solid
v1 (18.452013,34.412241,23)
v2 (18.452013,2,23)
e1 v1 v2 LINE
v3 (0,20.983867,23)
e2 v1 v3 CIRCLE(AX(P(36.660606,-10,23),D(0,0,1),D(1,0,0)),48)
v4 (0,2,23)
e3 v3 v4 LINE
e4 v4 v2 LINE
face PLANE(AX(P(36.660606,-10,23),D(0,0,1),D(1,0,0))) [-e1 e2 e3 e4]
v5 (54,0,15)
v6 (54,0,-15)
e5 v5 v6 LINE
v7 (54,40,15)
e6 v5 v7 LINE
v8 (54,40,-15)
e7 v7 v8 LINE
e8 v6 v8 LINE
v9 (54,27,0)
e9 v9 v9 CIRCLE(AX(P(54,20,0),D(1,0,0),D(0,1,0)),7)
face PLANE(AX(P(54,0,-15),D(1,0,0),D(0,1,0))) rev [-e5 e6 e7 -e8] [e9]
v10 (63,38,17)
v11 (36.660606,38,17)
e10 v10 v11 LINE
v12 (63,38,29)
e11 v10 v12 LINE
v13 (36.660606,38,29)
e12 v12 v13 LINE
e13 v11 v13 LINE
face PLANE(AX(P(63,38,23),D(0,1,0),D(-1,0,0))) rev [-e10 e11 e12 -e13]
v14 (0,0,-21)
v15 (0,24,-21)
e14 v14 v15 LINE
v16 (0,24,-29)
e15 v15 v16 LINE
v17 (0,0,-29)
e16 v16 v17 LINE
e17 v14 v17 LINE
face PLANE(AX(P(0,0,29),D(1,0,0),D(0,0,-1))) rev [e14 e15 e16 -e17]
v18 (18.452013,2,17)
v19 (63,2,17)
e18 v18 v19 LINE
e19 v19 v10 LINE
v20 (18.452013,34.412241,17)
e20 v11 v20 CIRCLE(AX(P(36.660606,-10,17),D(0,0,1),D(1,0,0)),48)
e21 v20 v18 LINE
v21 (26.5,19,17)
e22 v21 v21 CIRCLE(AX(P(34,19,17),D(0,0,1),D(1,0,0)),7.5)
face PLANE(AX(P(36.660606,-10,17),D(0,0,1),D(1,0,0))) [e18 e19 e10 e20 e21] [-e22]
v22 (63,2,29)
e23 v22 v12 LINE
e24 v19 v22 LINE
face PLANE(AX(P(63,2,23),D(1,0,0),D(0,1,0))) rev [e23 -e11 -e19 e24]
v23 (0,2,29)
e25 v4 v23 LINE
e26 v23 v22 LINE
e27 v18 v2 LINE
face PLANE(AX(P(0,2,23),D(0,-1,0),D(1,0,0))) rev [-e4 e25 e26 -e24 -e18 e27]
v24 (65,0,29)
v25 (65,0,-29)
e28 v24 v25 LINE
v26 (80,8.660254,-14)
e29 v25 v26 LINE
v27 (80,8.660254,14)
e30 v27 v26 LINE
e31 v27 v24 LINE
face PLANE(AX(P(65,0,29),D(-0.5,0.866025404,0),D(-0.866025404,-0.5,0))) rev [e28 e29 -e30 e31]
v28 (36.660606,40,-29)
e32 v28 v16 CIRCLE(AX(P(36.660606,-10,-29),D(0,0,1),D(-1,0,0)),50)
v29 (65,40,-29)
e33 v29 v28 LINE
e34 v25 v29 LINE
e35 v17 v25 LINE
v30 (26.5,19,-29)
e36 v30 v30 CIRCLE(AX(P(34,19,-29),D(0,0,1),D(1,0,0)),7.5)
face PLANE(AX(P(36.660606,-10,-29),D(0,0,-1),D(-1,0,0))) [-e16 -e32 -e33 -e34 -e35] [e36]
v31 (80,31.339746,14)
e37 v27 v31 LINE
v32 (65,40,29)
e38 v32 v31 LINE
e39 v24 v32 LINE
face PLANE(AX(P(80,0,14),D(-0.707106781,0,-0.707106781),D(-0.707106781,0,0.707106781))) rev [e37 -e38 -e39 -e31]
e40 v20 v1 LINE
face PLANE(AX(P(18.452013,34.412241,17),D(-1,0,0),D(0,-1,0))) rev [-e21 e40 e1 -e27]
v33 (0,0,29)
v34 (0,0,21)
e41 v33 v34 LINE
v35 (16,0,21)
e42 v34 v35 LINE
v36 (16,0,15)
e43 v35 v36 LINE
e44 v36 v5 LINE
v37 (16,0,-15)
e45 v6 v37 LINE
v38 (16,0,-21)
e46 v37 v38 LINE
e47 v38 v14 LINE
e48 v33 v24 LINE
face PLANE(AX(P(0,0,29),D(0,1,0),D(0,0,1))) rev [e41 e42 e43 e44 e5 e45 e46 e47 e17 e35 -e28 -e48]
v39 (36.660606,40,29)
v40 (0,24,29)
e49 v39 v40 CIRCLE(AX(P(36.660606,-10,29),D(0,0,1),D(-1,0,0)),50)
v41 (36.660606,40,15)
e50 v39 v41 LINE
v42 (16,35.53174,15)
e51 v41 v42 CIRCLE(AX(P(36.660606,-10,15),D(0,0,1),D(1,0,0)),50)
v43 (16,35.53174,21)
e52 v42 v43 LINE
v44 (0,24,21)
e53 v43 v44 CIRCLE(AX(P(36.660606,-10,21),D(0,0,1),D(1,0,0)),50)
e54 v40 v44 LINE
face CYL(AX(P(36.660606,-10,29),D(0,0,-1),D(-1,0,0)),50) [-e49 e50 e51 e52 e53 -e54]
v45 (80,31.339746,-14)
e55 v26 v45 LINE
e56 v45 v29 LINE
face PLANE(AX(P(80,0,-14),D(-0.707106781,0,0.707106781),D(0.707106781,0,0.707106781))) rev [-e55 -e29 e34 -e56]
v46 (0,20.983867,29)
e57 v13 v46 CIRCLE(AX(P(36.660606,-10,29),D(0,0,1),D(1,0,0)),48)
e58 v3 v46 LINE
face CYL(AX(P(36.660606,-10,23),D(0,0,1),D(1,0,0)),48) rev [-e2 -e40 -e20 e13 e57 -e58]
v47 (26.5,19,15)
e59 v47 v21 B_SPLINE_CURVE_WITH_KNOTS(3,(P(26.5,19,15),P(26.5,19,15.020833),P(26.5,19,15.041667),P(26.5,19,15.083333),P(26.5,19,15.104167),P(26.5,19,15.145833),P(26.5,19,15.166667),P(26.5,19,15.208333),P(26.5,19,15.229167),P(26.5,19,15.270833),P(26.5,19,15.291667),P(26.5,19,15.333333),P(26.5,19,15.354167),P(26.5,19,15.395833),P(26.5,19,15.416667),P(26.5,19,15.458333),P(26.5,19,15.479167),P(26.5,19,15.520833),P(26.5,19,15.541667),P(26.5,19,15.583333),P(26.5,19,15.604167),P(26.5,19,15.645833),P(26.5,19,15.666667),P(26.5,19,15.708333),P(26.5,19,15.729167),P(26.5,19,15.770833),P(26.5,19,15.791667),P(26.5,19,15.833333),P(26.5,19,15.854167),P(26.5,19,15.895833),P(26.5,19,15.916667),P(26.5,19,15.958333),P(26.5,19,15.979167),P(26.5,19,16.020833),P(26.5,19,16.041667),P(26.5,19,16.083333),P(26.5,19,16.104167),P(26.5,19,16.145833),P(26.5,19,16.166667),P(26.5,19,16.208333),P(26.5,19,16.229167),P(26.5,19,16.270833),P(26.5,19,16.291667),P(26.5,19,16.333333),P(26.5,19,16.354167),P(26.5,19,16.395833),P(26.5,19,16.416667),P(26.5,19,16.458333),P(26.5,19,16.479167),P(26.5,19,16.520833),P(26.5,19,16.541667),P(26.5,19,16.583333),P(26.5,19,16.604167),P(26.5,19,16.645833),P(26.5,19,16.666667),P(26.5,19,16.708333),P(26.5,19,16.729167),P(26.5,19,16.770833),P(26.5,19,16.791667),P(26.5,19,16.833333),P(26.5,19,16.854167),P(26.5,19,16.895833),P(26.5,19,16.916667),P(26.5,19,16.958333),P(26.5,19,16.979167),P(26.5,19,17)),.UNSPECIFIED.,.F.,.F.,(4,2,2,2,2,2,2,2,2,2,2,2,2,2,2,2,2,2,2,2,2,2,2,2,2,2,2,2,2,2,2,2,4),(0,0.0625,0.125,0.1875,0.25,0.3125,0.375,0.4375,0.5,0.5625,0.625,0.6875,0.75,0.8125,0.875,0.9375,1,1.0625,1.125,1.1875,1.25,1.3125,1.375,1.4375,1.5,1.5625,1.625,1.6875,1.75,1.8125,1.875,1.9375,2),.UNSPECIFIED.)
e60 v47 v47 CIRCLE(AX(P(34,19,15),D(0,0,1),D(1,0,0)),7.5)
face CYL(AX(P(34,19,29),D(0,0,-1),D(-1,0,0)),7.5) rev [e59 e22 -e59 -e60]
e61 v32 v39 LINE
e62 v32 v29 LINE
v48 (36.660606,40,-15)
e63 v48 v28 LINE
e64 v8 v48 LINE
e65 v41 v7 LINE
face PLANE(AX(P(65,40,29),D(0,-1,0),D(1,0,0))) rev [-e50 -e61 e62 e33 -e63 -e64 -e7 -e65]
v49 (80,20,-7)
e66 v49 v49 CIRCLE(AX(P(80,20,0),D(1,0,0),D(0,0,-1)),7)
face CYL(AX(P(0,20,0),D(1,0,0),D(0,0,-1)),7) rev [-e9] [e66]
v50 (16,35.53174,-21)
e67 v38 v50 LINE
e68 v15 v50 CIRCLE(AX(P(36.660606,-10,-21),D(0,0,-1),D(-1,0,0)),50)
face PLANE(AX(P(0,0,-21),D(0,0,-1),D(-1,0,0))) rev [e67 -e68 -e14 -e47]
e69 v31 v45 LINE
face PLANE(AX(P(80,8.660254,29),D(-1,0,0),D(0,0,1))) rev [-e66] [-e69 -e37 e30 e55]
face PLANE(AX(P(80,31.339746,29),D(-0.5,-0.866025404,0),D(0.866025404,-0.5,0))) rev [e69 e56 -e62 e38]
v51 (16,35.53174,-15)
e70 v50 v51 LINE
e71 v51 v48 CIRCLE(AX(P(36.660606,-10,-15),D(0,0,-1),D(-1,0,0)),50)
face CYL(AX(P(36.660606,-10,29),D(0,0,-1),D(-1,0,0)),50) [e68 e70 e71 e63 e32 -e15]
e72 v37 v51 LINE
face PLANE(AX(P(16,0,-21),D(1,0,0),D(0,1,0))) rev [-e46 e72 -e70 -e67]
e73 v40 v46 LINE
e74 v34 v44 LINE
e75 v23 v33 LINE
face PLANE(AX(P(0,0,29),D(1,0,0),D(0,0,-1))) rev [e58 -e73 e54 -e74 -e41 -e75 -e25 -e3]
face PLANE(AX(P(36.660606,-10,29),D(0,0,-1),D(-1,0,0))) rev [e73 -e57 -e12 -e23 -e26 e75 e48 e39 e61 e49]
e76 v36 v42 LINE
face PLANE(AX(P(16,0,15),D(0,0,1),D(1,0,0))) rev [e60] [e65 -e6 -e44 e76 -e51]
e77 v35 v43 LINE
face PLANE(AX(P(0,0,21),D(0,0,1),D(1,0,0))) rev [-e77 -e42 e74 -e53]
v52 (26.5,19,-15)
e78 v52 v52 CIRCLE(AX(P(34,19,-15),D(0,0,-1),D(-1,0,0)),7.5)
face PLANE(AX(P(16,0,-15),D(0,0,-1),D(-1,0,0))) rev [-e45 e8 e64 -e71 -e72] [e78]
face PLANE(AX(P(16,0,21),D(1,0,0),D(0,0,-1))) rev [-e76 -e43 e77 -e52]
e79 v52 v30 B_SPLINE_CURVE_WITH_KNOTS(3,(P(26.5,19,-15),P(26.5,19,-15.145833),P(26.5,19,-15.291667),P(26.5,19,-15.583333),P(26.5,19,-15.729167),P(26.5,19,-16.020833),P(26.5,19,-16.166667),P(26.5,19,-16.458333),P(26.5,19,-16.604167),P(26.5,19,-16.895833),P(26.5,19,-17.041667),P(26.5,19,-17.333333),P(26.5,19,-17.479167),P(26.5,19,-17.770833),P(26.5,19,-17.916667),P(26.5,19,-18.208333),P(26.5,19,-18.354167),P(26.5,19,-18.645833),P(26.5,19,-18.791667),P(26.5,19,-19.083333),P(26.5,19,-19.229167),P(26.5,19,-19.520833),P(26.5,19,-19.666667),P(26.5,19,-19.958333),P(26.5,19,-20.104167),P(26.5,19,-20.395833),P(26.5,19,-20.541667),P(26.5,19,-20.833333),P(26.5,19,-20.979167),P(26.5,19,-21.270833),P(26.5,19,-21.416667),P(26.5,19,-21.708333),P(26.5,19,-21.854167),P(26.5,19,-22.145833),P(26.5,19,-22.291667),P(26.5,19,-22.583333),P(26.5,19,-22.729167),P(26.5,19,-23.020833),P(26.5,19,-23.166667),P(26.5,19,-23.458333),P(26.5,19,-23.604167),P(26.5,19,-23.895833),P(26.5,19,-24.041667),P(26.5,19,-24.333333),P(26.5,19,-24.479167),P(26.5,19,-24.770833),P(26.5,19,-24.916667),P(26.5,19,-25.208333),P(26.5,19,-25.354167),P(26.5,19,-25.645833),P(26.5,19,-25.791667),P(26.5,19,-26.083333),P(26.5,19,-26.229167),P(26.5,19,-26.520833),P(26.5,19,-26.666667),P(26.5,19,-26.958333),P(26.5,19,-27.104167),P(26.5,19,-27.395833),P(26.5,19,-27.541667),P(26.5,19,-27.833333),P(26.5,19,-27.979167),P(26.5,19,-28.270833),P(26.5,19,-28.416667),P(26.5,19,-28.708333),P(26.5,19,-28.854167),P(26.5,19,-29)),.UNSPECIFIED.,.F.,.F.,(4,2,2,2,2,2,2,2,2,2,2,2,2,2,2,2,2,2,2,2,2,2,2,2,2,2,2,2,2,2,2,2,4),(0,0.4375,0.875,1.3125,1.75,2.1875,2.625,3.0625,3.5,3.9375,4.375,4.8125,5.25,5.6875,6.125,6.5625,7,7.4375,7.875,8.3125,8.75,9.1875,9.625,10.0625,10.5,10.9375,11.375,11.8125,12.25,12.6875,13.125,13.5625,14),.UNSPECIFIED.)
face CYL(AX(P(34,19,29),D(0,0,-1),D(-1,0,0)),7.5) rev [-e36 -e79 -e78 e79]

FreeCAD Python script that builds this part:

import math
import FreeCAD as App
import Part
import Sketcher
from FreeCAD import Vector
Q = App.Units.Quantity

doc = App.newDocument("Part")
body = doc.addObject("PartDesign::Body", "Body")

sketch1 = body.newObject("Sketcher::SketchObject", "Sketch")
sketch1.AttachmentSupport = (doc.getObject("XY_Plane"), [""])
sketch1.MapMode = "FlatFace"
sketch1.addGeometry([
    Part.LineSegment(Vector(0, 24, 0), Vector(0, 0, 0)),
    Part.LineSegment(Vector(0, 0, 0), Vector(65, 0, 0)),
    Part.LineSegment(Vector(65, 0, 0), Vector(80, 8.660254, 0)),
    Part.LineSegment(Vector(80, 8.660254, 0), Vector(80, 31.339746, 0)),
    Part.LineSegment(Vector(80, 31.339746, 0), Vector(65, 40, 0)),
    Part.LineSegment(Vector(65, 40, 0), Vector(36.660606, 40, 0)),
    Part.ArcOfCircle(Part.Circle(Vector(36.660606, -10, 0), Vector(0, 0, 1), 50), math.radians(90), math.radians(137.156357)),
    Part.Circle(Vector(34, 19, 0), Vector(0, 0, 1), 7.5),
], False)
sketch1.addConstraint([
    Sketcher.Constraint("Coincident", 0, 2, 1, 1),
    Sketcher.Constraint("Coincident", 1, 2, 2, 1),
    Sketcher.Constraint("Coincident", 2, 2, 3, 1),
    Sketcher.Constraint("Coincident", 3, 2, 4, 1),
    Sketcher.Constraint("Coincident", 4, 2, 5, 1),
    Sketcher.Constraint("Tangent", 5, 2, 6, 1),
    Sketcher.Constraint("Coincident", 6, 2, 0, 1),
    Sketcher.Constraint("Vertical", 0),
    Sketcher.Constraint("Horizontal", 1),
    Sketcher.Constraint("Vertical", 3),
    Sketcher.Constraint("Horizontal", 5),
    Sketcher.Constraint("Coincident", 0, 2, -1, 1),
    Sketcher.Constraint("Vertical", 1, 2, 4, 2),
    Sketcher.Constraint("Equal", 2, 4),
    Sketcher.Constraint("Diameter", 7, 15.0),
    Sketcher.Constraint("Radius", 6, 50.0),
    Sketcher.Constraint("DistanceX", 1, 1, 1, 2, 65.0),
    Sketcher.Constraint("DistanceY", 0, 2, 0, 1, 24.0),
    Sketcher.Constraint("Angle", 2, Q("30 deg")),
    Sketcher.Constraint("DistanceY", 6, 3, -1, 1, 10.0),
    Sketcher.Constraint("DistanceX", -1, 1, 7, 3, 34.0),
    Sketcher.Constraint("DistanceY", -1, 1, 7, 3, 19.0),
    Sketcher.Constraint("DistanceX", -1, 1, 2, 2, 80.0),
])
pad1 = body.newObject("PartDesign::Pad", "Pad")
pad1.Profile = sketch1
pad1.Length = 58
pad1.Midplane = True

sketch2 = body.newObject("Sketcher::SketchObject", "Sketch001")
sketch2.AttachmentSupport = (doc.getObject("XZ_Plane"), [""])
sketch2.MapMode = "FlatFace"
sketch2.AttachmentOffset = App.Placement(Vector(0, 0, -40), App.Rotation())
sketch2.addGeometry([
    Part.LineSegment(Vector(80, -29, 0), Vector(65, -29, 0)),
    Part.LineSegment(Vector(65, -29, 0), Vector(80, -14, 0)),
    Part.LineSegment(Vector(80, -14, 0), Vector(80, -29, 0)),
    Part.LineSegment(Vector(16, -21, 0), Vector(0, -21, 0)),
    Part.LineSegment(Vector(0, -21, 0), Vector(0, 21, 0)),
    Part.LineSegment(Vector(0, 21, 0), Vector(16, 21, 0)),
    Part.LineSegment(Vector(16, 21, 0), Vector(16, 15, 0)),
    Part.LineSegment(Vector(16, 15, 0), Vector(54, 15, 0)),
    Part.LineSegment(Vector(54, 15, 0), Vector(54, -15, 0)),
    Part.LineSegment(Vector(54, -15, 0), Vector(16, -15, 0)),
    Part.LineSegment(Vector(16, -15, 0), Vector(16, -21, 0)),
    Part.LineSegment(Vector(80, 29, 0), Vector(80, 14, 0)),
    Part.LineSegment(Vector(80, 14, 0), Vector(65, 29, 0)),
    Part.LineSegment(Vector(65, 29, 0), Vector(80, 29, 0)),
], False)
sketch2.addConstraint([
    Sketcher.Constraint("Coincident", 0, 2, 1, 1),
    Sketcher.Constraint("Coincident", 1, 2, 2, 1),
    Sketcher.Constraint("Coincident", 2, 2, 0, 1),
    Sketcher.Constraint("Coincident", 3, 2, 4, 1),
    Sketcher.Constraint("Coincident", 4, 2, 5, 1),
    Sketcher.Constraint("Coincident", 5, 2, 6, 1),
    Sketcher.Constraint("Coincident", 6, 2, 7, 1),
    Sketcher.Constraint("Coincident", 7, 2, 8, 1),
    Sketcher.Constraint("Coincident", 8, 2, 9, 1),
    Sketcher.Constraint("Coincident", 9, 2, 10, 1),
    Sketcher.Constraint("Coincident", 10, 2, 3, 1),
    Sketcher.Constraint("Coincident", 11, 2, 12, 1),
    Sketcher.Constraint("Coincident", 12, 2, 13, 1),
    Sketcher.Constraint("Coincident", 13, 2, 11, 1),
    Sketcher.Constraint("Horizontal", 0),
    Sketcher.Constraint("Vertical", 2),
    Sketcher.Constraint("Horizontal", 3),
    Sketcher.Constraint("Vertical", 4),
    Sketcher.Constraint("Horizontal", 5),
    Sketcher.Constraint("Vertical", 6),
    Sketcher.Constraint("Horizontal", 7),
    Sketcher.Constraint("Vertical", 8),
    Sketcher.Constraint("Horizontal", 9),
    Sketcher.Constraint("Vertical", 10),
    Sketcher.Constraint("Vertical", 11),
    Sketcher.Constraint("Horizontal", 13),
    Sketcher.Constraint("Symmetric", 3, 2, 4, 2, -1, 1),
    Sketcher.Constraint("Symmetric", 6, 2, 9, 2, -1),
    Sketcher.Constraint("Symmetric", 1, 2, 11, 2, -1),
    Sketcher.Constraint("Symmetric", 0, 2, 12, 2, -1),
    Sketcher.Constraint("Perpendicular", 1, 12),
    Sketcher.Constraint("DistanceX", 0, 2, 0, 1, 15.0),
    Sketcher.Constraint("DistanceX", 3, 2, 3, 1, 16.0),
    Sketcher.Constraint("DistanceX", 7, 1, 7, 2, 38.0),
    Sketcher.Constraint("DistanceY", 4, 1, 4, 2, 42.0),
    Sketcher.Constraint("DistanceY", 6, 2, 6, 1, 6.0),
    Sketcher.Constraint("DistanceX", -1, 1, 0, 2, 65.0),
    Sketcher.Constraint("DistanceY", 0, 2, -1, 1, 29.0),
])
pocket1 = body.newObject("PartDesign::Pocket", "Pocket")
pocket1.Profile = sketch2
pocket1.Type = "ThroughAll"
pocket1.Reversed = True

sketch3 = body.newObject("Sketcher::SketchObject", "Sketch002")
sketch3.AttachmentSupport = (doc.getObject("YZ_Plane"), [""])
sketch3.MapMode = "FlatFace"
sketch3.AttachmentOffset = App.Placement(Vector(0, 0, 80), App.Rotation())
sketch3.addGeometry(Part.Circle(Vector(20, 0, 0), Vector(0, 0, 1), 7), False)
sketch3.addConstraint([
    Sketcher.Constraint("PointOnObject", 0, 3, -1),
    Sketcher.Constraint("Diameter", 0, 14.0),
    Sketcher.Constraint("DistanceX", -1, 1, 0, 3, 20.0),
])
pocket2 = body.newObject("PartDesign::Pocket", "Pocket001")
pocket2.Profile = sketch3
pocket2.Type = "ThroughAll"

sketch4 = body.newObject("Sketcher::SketchObject", "Sketch003")
sketch4.AttachmentSupport = (doc.getObject("XY_Plane"), [""])
sketch4.MapMode = "FlatFace"
sketch4.AttachmentOffset = App.Placement(Vector(0, 0, 29), App.Rotation())
sketch4.addGeometry([
    Part.LineSegment(Vector(0, 20.983867, 0), Vector(0, 2, 0)),
    Part.LineSegment(Vector(0, 2, 0), Vector(63, 2, 0)),
    Part.LineSegment(Vector(63, 2, 0), Vector(63, 38, 0)),
    Part.LineSegment(Vector(63, 38, 0), Vector(36.660606, 38, 0)),
    Part.ArcOfCircle(Part.Circle(Vector(36.660606, -10, 0), Vector(0, 0, 1), 48), math.radians(90), math.radians(139.797034)),
], False)
sketch4.addConstraint([
    Sketcher.Constraint("Coincident", 0, 2, 1, 1),
    Sketcher.Constraint("Coincident", 1, 2, 2, 1),
    Sketcher.Constraint("Coincident", 2, 2, 3, 1),
    Sketcher.Constraint("Tangent", 3, 2, 4, 1),
    Sketcher.Constraint("Coincident", 4, 2, 0, 1),
    Sketcher.Constraint("Vertical", 0),
    Sketcher.Constraint("Horizontal", 1),
    Sketcher.Constraint("Vertical", 2),
    Sketcher.Constraint("Horizontal", 3),
    Sketcher.Constraint("PointOnObject", 0, 2, -2),
    Sketcher.Constraint("Radius", 4, 48.0),
    Sketcher.Constraint("DistanceX", 1, 1, 1, 2, 63.0),
    Sketcher.Constraint("DistanceY", 2, 1, 2, 2, 36.0),
    Sketcher.Constraint("DistanceY", 4, 3, -1, 1, 10.0),
    Sketcher.Constraint("DistanceX", 3, 2, 3, 1, 26.339394),
])
pocket3 = body.newObject("PartDesign::Pocket", "Pocket002")
pocket3.Profile = sketch4
pocket3.Length = 6

sketch5 = body.newObject("Sketcher::SketchObject", "Sketch004")
sketch5.AttachmentSupport = (doc.getObject("XY_Plane"), [""])
sketch5.MapMode = "FlatFace"
sketch5.AttachmentOffset = App.Placement(Vector(0, 0, 23), App.Rotation())
sketch5.addGeometry([
    Part.LineSegment(Vector(63, 2, 0), Vector(63, 38, 0)),
    Part.LineSegment(Vector(63, 38, 0), Vector(36.660606, 38, 0)),
    Part.ArcOfCircle(Part.Circle(Vector(36.660606, -10, 0), Vector(0, 0, 1), 48), math.radians(90), math.radians(112.293158)),
    Part.LineSegment(Vector(18.452013, 34.412241, 0), Vector(18.452013, 2, 0)),
    Part.LineSegment(Vector(18.452013, 2, 0), Vector(63, 2, 0)),
], False)
sketch5.addConstraint([
    Sketcher.Constraint("Coincident", 0, 2, 1, 1),
    Sketcher.Constraint("Tangent", 1, 2, 2, 1),
    Sketcher.Constraint("Coincident", 2, 2, 3, 1),
    Sketcher.Constraint("Coincident", 3, 2, 4, 1),
    Sketcher.Constraint("Coincident", 4, 2, 0, 1),
    Sketcher.Constraint("Vertical", 0),
    Sketcher.Constraint("Horizontal", 1),
    Sketcher.Constraint("Vertical", 3),
    Sketcher.Constraint("Horizontal", 4),
    Sketcher.Constraint("Radius", 2, 48.0),
    Sketcher.Constraint("DistanceY", 0, 1, 0, 2, 36.0),
    Sketcher.Constraint("DistanceY", 2, 3, -1, 1, 10.0),
    Sketcher.Constraint("DistanceX", -1, 1, 0, 2, 63.0),
    Sketcher.Constraint("DistanceY", 3, 2, 3, 1, 32.412241),
    Sketcher.Constraint("DistanceX", 1, 2, 1, 1, 26.339394),
])
pocket4 = body.newObject("PartDesign::Pocket", "Pocket003")
pocket4.Profile = sketch5
pocket4.Length = 6

doc.recompute()
